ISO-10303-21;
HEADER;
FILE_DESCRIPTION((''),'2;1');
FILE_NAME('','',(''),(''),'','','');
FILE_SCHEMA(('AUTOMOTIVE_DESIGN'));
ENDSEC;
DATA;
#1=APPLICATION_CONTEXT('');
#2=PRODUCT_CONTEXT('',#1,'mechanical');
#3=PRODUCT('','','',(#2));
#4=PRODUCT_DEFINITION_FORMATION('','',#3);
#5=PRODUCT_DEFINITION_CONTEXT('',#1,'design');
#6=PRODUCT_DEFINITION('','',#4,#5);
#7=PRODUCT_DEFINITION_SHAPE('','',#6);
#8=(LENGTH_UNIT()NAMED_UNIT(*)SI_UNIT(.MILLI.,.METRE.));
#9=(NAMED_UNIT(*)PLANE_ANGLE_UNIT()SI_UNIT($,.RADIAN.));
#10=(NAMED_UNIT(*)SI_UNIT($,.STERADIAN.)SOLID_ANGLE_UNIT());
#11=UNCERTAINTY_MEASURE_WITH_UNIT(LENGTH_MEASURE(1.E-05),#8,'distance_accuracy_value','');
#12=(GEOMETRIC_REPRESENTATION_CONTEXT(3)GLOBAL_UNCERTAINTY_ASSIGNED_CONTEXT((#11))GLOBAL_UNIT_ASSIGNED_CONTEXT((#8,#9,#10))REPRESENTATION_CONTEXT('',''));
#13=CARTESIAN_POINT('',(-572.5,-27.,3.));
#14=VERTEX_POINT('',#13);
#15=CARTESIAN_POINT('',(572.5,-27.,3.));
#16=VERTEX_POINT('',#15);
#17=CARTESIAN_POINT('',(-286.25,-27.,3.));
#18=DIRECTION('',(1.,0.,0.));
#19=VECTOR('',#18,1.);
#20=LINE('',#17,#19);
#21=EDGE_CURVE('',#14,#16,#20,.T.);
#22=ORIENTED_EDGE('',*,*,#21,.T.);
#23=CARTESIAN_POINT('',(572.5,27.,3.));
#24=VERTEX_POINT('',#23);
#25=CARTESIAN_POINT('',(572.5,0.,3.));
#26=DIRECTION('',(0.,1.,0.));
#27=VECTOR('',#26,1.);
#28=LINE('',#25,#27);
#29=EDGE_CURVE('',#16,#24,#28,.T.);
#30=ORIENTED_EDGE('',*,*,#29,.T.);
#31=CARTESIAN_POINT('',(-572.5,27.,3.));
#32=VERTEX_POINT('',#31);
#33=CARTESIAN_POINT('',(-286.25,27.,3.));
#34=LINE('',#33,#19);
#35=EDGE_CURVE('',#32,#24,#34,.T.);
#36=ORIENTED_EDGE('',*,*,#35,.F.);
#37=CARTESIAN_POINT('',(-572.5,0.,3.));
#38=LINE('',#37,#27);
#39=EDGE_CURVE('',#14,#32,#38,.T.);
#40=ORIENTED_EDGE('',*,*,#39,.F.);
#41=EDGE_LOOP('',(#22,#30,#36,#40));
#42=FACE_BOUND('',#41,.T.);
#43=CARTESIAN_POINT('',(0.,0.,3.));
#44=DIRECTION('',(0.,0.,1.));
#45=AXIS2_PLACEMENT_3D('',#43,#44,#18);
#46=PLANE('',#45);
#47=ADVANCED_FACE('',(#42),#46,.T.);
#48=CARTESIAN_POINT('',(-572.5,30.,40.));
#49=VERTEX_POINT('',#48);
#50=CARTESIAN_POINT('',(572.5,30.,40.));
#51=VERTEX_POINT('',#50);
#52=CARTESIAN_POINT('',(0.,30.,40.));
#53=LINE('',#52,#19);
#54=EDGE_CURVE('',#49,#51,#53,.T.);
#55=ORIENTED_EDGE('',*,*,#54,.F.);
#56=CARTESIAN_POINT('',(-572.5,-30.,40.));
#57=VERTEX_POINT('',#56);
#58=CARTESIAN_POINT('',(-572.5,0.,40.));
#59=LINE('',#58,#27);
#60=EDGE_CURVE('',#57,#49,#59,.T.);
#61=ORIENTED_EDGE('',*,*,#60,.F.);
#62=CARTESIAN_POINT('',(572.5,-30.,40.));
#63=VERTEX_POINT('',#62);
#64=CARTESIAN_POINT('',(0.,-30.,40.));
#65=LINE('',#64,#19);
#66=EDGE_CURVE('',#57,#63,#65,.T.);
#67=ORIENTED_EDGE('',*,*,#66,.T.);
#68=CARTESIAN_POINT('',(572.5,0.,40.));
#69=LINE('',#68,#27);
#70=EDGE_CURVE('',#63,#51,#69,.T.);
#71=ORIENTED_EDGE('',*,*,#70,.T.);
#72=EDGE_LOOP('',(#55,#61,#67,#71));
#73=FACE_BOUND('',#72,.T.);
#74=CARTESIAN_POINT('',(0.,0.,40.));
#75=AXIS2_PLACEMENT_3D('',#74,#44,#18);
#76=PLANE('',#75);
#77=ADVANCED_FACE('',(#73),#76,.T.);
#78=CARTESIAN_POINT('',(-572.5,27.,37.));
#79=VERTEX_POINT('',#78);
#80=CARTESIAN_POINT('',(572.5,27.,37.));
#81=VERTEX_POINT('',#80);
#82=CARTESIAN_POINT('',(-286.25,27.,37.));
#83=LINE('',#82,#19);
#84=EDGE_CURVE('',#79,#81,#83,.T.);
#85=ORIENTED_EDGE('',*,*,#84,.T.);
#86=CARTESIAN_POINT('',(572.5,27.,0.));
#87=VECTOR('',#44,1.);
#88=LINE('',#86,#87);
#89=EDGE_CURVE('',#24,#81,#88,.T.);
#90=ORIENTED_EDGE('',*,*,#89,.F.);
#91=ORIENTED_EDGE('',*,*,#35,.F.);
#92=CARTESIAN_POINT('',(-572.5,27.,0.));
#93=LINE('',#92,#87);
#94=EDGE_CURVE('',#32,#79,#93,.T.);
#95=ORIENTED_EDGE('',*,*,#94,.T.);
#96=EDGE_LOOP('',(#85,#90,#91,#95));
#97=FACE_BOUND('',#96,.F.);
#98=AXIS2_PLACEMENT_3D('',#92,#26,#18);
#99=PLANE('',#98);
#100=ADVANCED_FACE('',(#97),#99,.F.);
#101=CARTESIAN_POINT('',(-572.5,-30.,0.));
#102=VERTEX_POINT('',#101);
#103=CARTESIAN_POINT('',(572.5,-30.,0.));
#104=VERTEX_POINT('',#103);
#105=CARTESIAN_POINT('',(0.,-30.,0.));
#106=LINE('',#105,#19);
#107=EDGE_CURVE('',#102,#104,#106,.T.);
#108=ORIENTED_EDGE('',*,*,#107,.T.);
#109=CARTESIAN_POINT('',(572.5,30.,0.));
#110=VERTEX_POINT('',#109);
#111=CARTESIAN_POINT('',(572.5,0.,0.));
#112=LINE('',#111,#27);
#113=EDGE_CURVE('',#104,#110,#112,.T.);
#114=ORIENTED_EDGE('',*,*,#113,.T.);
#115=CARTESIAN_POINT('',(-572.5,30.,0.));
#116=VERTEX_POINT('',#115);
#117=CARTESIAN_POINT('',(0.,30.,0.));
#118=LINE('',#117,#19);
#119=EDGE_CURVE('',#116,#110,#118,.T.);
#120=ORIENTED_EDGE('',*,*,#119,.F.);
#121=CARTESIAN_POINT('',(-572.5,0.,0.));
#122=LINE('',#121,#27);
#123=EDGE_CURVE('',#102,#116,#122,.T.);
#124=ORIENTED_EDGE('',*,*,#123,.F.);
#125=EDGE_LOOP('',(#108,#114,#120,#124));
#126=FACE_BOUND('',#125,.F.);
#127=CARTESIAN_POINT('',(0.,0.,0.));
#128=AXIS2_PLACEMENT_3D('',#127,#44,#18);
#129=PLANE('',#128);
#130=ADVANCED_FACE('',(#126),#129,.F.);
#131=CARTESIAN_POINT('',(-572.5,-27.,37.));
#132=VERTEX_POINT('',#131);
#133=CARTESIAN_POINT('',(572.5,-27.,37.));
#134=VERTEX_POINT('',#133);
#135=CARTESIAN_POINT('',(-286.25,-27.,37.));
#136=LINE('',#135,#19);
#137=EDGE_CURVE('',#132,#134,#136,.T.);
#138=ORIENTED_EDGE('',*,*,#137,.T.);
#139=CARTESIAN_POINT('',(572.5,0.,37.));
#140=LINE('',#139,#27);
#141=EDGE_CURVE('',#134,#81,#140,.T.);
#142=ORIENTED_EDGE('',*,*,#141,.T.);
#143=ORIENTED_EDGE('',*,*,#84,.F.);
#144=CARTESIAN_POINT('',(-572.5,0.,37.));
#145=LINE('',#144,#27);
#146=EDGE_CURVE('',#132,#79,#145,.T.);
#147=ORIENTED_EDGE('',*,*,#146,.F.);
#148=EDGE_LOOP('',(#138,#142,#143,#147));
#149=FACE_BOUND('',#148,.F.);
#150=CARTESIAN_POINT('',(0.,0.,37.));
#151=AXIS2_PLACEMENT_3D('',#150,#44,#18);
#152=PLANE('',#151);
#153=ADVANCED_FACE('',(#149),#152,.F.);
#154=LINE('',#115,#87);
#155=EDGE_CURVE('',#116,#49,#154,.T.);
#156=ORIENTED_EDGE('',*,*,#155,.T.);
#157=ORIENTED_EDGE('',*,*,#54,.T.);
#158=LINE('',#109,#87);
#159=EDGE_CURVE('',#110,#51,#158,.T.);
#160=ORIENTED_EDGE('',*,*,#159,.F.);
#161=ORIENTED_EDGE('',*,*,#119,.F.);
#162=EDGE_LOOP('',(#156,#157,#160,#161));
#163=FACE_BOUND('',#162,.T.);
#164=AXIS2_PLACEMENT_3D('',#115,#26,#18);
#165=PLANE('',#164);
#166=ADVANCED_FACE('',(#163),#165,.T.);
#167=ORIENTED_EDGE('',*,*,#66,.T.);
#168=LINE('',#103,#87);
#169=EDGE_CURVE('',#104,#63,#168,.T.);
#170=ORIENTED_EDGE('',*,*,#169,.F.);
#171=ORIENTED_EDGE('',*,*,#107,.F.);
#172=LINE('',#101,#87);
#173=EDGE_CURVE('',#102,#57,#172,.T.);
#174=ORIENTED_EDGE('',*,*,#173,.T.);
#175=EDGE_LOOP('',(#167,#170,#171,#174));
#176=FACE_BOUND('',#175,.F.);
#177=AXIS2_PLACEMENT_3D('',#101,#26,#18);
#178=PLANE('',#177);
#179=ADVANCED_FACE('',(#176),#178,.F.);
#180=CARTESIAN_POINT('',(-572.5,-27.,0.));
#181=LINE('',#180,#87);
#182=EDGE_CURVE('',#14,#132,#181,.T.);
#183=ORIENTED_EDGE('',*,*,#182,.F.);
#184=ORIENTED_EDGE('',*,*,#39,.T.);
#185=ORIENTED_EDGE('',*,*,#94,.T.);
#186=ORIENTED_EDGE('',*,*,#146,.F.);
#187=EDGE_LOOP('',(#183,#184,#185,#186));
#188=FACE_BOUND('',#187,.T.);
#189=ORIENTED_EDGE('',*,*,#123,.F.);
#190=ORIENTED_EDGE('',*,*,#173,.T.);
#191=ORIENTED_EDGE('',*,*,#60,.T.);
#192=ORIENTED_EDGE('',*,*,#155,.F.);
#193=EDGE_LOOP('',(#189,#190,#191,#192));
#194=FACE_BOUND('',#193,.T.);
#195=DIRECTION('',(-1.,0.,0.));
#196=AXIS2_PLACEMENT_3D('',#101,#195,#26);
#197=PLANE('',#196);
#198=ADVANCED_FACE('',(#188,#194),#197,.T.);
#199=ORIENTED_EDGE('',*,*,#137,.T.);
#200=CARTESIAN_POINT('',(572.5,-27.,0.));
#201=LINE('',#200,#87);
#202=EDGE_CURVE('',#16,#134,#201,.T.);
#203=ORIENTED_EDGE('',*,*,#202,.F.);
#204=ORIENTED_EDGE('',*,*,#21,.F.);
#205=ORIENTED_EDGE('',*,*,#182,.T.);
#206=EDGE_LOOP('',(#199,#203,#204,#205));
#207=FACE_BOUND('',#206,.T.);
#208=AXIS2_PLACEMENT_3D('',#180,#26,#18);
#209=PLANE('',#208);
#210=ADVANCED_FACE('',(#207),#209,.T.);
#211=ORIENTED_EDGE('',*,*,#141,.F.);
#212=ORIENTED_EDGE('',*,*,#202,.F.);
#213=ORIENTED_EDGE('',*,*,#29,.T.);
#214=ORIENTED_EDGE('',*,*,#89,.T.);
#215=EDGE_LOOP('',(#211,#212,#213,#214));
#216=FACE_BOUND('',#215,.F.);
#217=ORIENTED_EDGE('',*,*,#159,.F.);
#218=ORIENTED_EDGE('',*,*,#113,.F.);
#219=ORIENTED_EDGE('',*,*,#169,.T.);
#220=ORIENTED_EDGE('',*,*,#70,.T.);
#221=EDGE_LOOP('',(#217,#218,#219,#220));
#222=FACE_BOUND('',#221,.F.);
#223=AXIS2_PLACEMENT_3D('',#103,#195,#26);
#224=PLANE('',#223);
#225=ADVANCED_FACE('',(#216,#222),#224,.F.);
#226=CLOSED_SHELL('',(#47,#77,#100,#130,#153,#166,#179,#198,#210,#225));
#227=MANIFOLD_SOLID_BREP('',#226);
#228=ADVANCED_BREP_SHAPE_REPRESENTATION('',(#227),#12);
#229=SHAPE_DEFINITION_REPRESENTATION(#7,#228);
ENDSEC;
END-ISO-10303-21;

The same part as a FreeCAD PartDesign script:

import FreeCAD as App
import Part
import Sketcher

V = App.Vector
Q = App.Units.Quantity


def faces_at(feature, points):
    """Names of the faces that lie closest to the given points."""
    faces = feature.Shape.Faces
    near = lambda p: min(range(len(faces)), key=lambda i: faces[i].distToShape(Part.Vertex(*p))[0])
    return sorted({f"Face{near(p) + 1}" for p in points})


def add_polygon(sketch, points):
    """Adds a closed chain of lines whose ends are joined by coincident constraints."""
    first, n = sketch.GeometryCount, len(points)
    for a, b in zip(points, points[1:] + points[:1]):
        sketch.addGeometry(Part.LineSegment(App.Vector(*a, 0), App.Vector(*b, 0)), False)
    for i in range(n):
        sketch.addConstraint(Sketcher.Constraint("Coincident", first + i, 2, first + (i + 1) % n, 1))

doc = App.newDocument("Part")
body = doc.addObject("PartDesign::Body", "Body")

# Sketch on XY plane
sketch1 = body.newObject("Sketcher::SketchObject", "Sketch")
sketch1.AttachmentSupport = (doc.getObject("XY_Plane"), [""])
sketch1.MapMode = "FlatFace"
add_polygon(sketch1, [(-572.5, 30), (-572.5, -30), (572.5, -30), (572.5, 30)])  # lines 0-3
sketch1.addConstraint([
    Sketcher.Constraint("Vertical", 0),
    Sketcher.Constraint("Horizontal", 1),
    Sketcher.Constraint("Vertical", 2),
    Sketcher.Constraint("Horizontal", 3),
    Sketcher.Constraint("Symmetric", 0, 2, 2, 2, -1, 1),
    Sketcher.Constraint("DistanceX", 1, 1, 1, 2, Q("1145 mm")),
    Sketcher.Constraint("DistanceY", 0, 2, 0, 1, Q("60 mm")),
])
pad1 = body.newObject("PartDesign::Pad", "Pad")
pad1.Profile = sketch1
pad1.Length = 40
doc.recompute()

thickness = body.newObject("PartDesign::Thickness", "Thickness")
thickness.Base = (pad1, faces_at(pad1, [(-572.5, 0, 20), (572.5, 0, 20)]))
thickness.Value = 3
thickness.Reversed = True
thickness.Join = "Arc"

doc.recompute()
